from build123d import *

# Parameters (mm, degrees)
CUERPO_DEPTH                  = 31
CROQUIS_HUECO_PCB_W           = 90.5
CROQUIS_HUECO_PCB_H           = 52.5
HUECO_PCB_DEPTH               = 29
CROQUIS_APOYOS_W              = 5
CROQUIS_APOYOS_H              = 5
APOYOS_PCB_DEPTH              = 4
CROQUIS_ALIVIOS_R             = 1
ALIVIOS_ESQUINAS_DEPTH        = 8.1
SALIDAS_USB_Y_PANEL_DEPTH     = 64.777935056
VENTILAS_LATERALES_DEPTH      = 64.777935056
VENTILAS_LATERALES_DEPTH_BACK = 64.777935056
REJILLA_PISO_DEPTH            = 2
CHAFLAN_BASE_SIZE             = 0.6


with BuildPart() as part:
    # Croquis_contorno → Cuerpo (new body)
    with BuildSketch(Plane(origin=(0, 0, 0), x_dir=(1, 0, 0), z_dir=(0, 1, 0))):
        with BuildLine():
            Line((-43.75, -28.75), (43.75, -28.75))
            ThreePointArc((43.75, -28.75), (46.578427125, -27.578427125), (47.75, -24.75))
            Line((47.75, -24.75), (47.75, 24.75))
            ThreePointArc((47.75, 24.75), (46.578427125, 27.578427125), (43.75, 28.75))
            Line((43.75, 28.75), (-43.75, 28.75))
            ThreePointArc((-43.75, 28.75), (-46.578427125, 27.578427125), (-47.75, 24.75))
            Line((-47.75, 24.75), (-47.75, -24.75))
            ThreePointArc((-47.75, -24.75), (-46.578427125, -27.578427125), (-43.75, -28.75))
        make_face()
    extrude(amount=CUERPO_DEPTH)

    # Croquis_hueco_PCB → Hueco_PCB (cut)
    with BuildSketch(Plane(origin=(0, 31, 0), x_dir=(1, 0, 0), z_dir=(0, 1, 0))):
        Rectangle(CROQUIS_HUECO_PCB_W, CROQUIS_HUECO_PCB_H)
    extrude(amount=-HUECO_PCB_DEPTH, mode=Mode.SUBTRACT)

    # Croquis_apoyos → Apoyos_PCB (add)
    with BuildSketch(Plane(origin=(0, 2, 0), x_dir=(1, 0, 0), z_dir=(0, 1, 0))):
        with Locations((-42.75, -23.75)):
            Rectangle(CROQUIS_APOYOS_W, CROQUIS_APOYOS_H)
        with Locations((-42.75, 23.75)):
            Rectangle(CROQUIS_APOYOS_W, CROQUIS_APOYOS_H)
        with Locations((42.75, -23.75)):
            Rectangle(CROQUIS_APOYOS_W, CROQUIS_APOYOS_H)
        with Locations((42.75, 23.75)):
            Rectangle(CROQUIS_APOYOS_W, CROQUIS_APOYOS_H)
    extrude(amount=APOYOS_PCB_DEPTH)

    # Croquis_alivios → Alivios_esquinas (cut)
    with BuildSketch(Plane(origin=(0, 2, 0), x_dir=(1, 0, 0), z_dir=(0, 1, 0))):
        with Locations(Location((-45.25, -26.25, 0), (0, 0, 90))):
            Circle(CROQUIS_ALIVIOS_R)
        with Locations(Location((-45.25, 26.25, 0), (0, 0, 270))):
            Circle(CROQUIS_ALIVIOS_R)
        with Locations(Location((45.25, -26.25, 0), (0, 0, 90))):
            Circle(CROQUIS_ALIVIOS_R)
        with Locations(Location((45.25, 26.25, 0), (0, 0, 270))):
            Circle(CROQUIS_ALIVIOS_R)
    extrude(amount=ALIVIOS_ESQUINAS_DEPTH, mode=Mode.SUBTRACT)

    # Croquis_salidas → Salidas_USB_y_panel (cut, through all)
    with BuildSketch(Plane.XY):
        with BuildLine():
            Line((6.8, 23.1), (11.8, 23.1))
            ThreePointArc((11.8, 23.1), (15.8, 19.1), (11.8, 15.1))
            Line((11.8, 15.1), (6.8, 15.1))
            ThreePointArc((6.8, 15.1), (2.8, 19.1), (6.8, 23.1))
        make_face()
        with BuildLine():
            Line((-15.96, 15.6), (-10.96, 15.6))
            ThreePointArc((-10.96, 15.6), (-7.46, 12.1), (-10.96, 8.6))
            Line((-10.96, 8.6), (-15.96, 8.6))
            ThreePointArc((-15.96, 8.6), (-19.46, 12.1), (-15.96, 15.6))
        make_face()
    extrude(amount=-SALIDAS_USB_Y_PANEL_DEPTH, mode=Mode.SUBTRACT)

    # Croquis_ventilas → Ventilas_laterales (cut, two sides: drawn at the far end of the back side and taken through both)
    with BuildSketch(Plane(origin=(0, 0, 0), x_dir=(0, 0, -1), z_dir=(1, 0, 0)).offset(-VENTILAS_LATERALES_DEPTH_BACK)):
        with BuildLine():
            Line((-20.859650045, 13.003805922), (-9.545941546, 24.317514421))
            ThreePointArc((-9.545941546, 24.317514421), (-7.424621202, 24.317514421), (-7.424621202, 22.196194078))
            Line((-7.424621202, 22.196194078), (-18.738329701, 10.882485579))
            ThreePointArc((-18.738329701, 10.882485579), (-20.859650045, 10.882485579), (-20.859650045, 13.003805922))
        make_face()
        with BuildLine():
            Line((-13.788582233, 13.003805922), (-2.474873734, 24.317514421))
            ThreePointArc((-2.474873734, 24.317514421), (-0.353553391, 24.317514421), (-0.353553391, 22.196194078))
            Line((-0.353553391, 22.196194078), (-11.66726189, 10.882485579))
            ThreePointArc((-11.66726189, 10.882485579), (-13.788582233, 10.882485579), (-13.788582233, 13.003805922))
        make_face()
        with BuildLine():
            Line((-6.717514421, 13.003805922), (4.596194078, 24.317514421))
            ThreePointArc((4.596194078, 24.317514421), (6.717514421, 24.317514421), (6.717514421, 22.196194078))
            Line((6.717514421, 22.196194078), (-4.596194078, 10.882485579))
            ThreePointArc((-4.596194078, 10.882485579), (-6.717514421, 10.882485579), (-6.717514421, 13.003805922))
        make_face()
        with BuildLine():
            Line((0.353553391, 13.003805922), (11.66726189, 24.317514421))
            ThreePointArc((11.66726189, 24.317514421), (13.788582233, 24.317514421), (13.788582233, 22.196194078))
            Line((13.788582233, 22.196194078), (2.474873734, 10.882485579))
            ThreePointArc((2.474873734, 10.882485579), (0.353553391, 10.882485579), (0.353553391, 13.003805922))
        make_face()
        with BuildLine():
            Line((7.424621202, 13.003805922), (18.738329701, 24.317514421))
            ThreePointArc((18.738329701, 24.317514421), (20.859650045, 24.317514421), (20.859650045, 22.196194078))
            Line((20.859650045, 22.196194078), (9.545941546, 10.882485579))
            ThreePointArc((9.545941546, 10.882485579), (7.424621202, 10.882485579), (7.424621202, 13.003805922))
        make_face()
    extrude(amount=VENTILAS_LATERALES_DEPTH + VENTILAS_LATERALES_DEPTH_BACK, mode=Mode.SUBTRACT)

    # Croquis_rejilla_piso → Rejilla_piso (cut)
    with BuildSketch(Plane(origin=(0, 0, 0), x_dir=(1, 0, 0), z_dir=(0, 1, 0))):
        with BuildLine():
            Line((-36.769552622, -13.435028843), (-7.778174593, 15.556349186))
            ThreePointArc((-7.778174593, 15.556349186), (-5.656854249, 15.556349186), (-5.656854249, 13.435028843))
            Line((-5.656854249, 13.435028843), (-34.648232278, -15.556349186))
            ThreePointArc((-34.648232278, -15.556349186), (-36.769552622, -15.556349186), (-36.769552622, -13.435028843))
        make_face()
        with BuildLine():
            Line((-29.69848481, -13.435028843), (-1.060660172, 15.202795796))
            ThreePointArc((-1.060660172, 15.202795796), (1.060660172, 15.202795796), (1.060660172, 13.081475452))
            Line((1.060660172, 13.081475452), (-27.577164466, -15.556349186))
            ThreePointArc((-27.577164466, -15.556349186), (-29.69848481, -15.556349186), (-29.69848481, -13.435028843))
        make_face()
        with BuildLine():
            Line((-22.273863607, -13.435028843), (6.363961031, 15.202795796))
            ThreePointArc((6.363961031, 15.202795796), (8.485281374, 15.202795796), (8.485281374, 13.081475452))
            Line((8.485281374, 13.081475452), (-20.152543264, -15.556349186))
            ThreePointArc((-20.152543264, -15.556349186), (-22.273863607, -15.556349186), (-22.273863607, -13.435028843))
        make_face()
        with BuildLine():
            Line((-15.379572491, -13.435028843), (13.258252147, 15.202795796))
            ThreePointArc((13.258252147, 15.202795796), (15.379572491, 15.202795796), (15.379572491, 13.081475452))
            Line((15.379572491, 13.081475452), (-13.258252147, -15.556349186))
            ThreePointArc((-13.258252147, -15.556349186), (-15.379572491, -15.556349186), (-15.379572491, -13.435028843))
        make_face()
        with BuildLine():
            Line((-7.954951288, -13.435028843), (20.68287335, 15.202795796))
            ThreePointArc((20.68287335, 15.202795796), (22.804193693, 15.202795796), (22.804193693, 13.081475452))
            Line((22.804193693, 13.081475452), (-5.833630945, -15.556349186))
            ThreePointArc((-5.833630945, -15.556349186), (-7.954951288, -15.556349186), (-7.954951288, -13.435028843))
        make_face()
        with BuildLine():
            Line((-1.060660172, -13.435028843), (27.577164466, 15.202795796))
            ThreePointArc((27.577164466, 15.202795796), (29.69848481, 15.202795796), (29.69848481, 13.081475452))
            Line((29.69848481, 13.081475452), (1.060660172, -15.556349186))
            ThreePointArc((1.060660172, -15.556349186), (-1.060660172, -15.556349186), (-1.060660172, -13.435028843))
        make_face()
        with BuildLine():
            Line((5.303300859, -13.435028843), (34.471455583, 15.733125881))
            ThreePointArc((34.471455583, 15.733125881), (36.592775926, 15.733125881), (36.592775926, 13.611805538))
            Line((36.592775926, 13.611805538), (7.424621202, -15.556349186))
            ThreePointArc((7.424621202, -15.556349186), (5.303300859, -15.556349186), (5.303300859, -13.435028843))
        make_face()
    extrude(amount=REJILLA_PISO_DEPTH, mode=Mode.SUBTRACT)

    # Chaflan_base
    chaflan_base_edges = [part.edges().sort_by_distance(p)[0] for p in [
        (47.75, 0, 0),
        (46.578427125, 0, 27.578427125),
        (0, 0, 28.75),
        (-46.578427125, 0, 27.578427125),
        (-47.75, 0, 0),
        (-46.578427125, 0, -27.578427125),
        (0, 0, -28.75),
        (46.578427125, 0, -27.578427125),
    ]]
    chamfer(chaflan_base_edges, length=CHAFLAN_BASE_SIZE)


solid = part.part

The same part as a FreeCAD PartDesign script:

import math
import FreeCAD as App
import Part
import Sketcher

V = App.Vector
Q = App.Units.Quantity


def edges_at(feature, points):
    """Names of the edges that pass closest to the given points."""
    edges = feature.Shape.Edges
    near = lambda p: min(range(len(edges)), key=lambda i: edges[i].distToShape(Part.Vertex(*p))[0])
    return sorted({f"Edge{near(p) + 1}" for p in points})


def add_polygon(sketch, points):
    """Adds a closed chain of lines whose ends are joined by coincident constraints."""
    first, n = sketch.GeometryCount, len(points)
    for a, b in zip(points, points[1:] + points[:1]):
        sketch.addGeometry(Part.LineSegment(App.Vector(*a, 0), App.Vector(*b, 0)), False)
    for i in range(n):
        sketch.addConstraint(Sketcher.Constraint("Coincident", first + i, 2, first + (i + 1) % n, 1))

doc = App.newDocument("Part")
body = doc.addObject("PartDesign::Body", "Body")

# Sketch on XZ plane
sketch1 = body.newObject("Sketcher::SketchObject", "Sketch")
sketch1.AttachmentSupport = (doc.getObject("XZ_Plane"), [""])
sketch1.MapMode = "FlatFace"
sketch1.addGeometry([
    Part.LineSegment(V(-43.75, 28.75, 0), V(43.75, 28.75, 0)),  # 0
    Part.ArcOfCircle(Part.Circle(V(43.75, 24.75, 0), V(0, 0, 1), 4), math.radians(0), math.radians(90)),  # 1
    Part.LineSegment(V(47.75, 24.75, 0), V(47.75, -24.75, 0)),  # 2
    Part.ArcOfCircle(Part.Circle(V(43.75, -24.75, 0), V(0, 0, 1), 4), math.radians(-90), math.radians(0)),  # 3
    Part.LineSegment(V(43.75, -28.75, 0), V(-43.75, -28.75, 0)),  # 4
    Part.ArcOfCircle(Part.Circle(V(-43.75, -24.75, 0), V(0, 0, 1), 4), math.radians(180), math.radians(270)),  # 5
    Part.LineSegment(V(-47.75, -24.75, 0), V(-47.75, 24.75, 0)),  # 6
    Part.ArcOfCircle(Part.Circle(V(-43.75, 24.75, 0), V(0, 0, 1), 4), math.radians(90), math.radians(180)),  # 7
], False)
sketch1.addConstraint([
    Sketcher.Constraint("Tangent", 0, 2, 1, 2),
    Sketcher.Constraint("Tangent", 1, 1, 2, 1),
    Sketcher.Constraint("Tangent", 2, 2, 3, 2),
    Sketcher.Constraint("Tangent", 3, 1, 4, 1),
    Sketcher.Constraint("Tangent", 4, 2, 5, 2),
    Sketcher.Constraint("Tangent", 5, 1, 6, 1),
    Sketcher.Constraint("Tangent", 6, 2, 7, 2),
    Sketcher.Constraint("Tangent", 7, 1, 0, 1),
    Sketcher.Constraint("Horizontal", 0),
    Sketcher.Constraint("Vertical", 2),
    Sketcher.Constraint("Horizontal", 4),
    Sketcher.Constraint("Vertical", 6),
    Sketcher.Constraint("Equal", 1, 3),
    Sketcher.Constraint("Equal", 3, 5),
    Sketcher.Constraint("Equal", 5, 7),
    Sketcher.Constraint("Symmetric", 1, 3, 5, 3, -1, 1),
    Sketcher.Constraint("Radius", 1, Q("4 mm")),
    Sketcher.Constraint("DistanceX", 0, 1, 0, 2, Q("87.5 mm")),
    Sketcher.Constraint("DistanceY", 2, 2, 2, 1, Q("49.5 mm")),
])
pad1 = body.newObject("PartDesign::Pad", "Pad")
pad1.Profile = sketch1
pad1.Length = 31
pad1.Reversed = True

# Sketch on XZ plane
sketch2 = body.newObject("Sketcher::SketchObject", "Sketch001")
sketch2.AttachmentSupport = (doc.getObject("XZ_Plane"), [""])
sketch2.MapMode = "FlatFace"
sketch2.AttachmentOffset = App.Placement(V(0, 0, -31), App.Rotation())
add_polygon(sketch2, [(-45.25, -26.25), (-45.25, 26.25), (45.25, 26.25), (45.25, -26.25)])  # lines 0-3
sketch2.addConstraint([
    Sketcher.Constraint("Vertical", 0),
    Sketcher.Constraint("Horizontal", 1),
    Sketcher.Constraint("Vertical", 2),
    Sketcher.Constraint("Horizontal", 3),
    Sketcher.Constraint("Symmetric", 0, 2, 2, 2, -1, 1),
    Sketcher.Constraint("DistanceX", 1, 1, 1, 2, Q("90.5 mm")),
    Sketcher.Constraint("DistanceY", 0, 1, 0, 2, Q("52.5 mm")),
])
pocket1 = body.newObject("PartDesign::Pocket", "Pocket")
pocket1.Profile = sketch2
pocket1.Length = 29
pocket1.Reversed = True

# Sketch on XZ plane
sketch3 = body.newObject("Sketcher::SketchObject", "Sketch002")
sketch3.AttachmentSupport = (doc.getObject("XZ_Plane"), [""])
sketch3.MapMode = "FlatFace"
sketch3.AttachmentOffset = App.Placement(V(0, 0, -2), App.Rotation())
add_polygon(sketch3, [(-45.25, 21.25), (-45.25, 26.25), (-40.25, 26.25), (-40.25, 21.25)])  # lines 0-3
add_polygon(sketch3, [(-45.25, -26.25), (-45.25, -21.25), (-40.25, -21.25), (-40.25, -26.25)])  # lines 4-7
add_polygon(sketch3, [(40.25, 21.25), (40.25, 26.25), (45.25, 26.25), (45.25, 21.25)])  # lines 8-11
add_polygon(sketch3, [(40.25, -26.25), (40.25, -21.25), (45.25, -21.25), (45.25, -26.25)])  # lines 12-15
sketch3.addConstraint([
    Sketcher.Constraint("Vertical", 0),
    Sketcher.Constraint("Horizontal", 1),
    Sketcher.Constraint("Vertical", 2),
    Sketcher.Constraint("Horizontal", 3),
    Sketcher.Constraint("Vertical", 4),
    Sketcher.Constraint("Horizontal", 5),
    Sketcher.Constraint("Vertical", 6),
    Sketcher.Constraint("Horizontal", 7),
    Sketcher.Constraint("Vertical", 8),
    Sketcher.Constraint("Horizontal", 9),
    Sketcher.Constraint("Vertical", 10),
    Sketcher.Constraint("Horizontal", 11),
    Sketcher.Constraint("Vertical", 12),
    Sketcher.Constraint("Horizontal", 13),
    Sketcher.Constraint("Vertical", 14),
    Sketcher.Constraint("Horizontal", 15),
    Sketcher.Constraint("Symmetric", 6, 2, 8, 2, -1, 1),
    Sketcher.Constraint("Symmetric", 4, 2, 10, 2, -1, 1),
    Sketcher.Constraint("Symmetric", 2, 2, 12, 2, -1, 1),
    Sketcher.Constraint("Symmetric", 0, 2, 14, 2, -1, 1),
    Sketcher.Constraint("Symmetric", 1, 2, 8, 2, -2),
    Sketcher.Constraint("Symmetric", 3, 2, 10, 2, -2),
    Sketcher.Constraint("Equal", 15, 0),
    Sketcher.Constraint("DistanceX", 1, 1, 1, 2, Q("5 mm")),
    Sketcher.Constraint("DistanceY", 4, 2, 3, 2, Q("42.5 mm")),
    Sketcher.Constraint("DistanceX", 1, 2, 8, 2, Q("80.5 mm")),
])
pad2 = body.newObject("PartDesign::Pad", "Pad001")
pad2.Profile = sketch3
pad2.Length = 4
pad2.Reversed = True

# Sketch on XZ plane
sketch4 = body.newObject("Sketcher::SketchObject", "Sketch003")
sketch4.AttachmentSupport = (doc.getObject("XZ_Plane"), [""])
sketch4.MapMode = "FlatFace"
sketch4.AttachmentOffset = App.Placement(V(0, 0, -2), App.Rotation())
sketch4.addGeometry([
    Part.Circle(V(-45.25, 26.25, 0), V(0, 0, 1), 1),
    Part.Circle(V(-45.25, -26.25, 0), V(0, 0, 1), 1),
    Part.Circle(V(45.25, 26.25, 0), V(0, 0, 1), 1),
    Part.Circle(V(45.25, -26.25, 0), V(0, 0, 1), 1),
], False)
sketch4.addConstraint([
    Sketcher.Constraint("Equal", 0, 1),
    Sketcher.Constraint("Equal", 1, 2),
    Sketcher.Constraint("Equal", 2, 3),
    Sketcher.Constraint("Symmetric", 1, 3, 2, 3, -1, 1),
    Sketcher.Constraint("Symmetric", 0, 3, 3, 3, -1, 1),
    Sketcher.Constraint("Symmetric", 0, 3, 2, 3, -2),
    Sketcher.Constraint("Diameter", 0, Q("2 mm")),
    Sketcher.Constraint("DistanceY", 1, 3, 0, 3, Q("52.5 mm")),
    Sketcher.Constraint("DistanceX", 0, 3, 2, 3, Q("90.5 mm")),
])
pocket2 = body.newObject("PartDesign::Pocket", "Pocket001")
pocket2.Profile = sketch4
pocket2.Length = 8.1

# Sketch on XY plane
sketch5 = body.newObject("Sketcher::SketchObject", "Sketch004")
sketch5.AttachmentSupport = (doc.getObject("XY_Plane"), [""])
sketch5.MapMode = "FlatFace"
sketch5.addGeometry([
    Part.LineSegment(V(11.8, 23.1, 0), V(6.8, 23.1, 0)),  # 0
    Part.ArcOfCircle(Part.Circle(V(6.8, 19.1, 0), V(0, 0, 1), 4), math.radians(90), math.radians(270)),  # 1
    Part.LineSegment(V(6.8, 15.1, 0), V(11.8, 15.1, 0)),  # 2
    Part.ArcOfCircle(Part.Circle(V(11.8, 19.1, 0), V(0, 0, 1), 4), math.radians(-90), math.radians(90)),  # 3
    Part.LineSegment(V(-10.96, 15.6, 0), V(-15.96, 15.6, 0)),  # 4
    Part.ArcOfCircle(Part.Circle(V(-15.96, 12.1, 0), V(0, 0, 1), 3.5), math.radians(90), math.radians(270)),  # 5
    Part.LineSegment(V(-15.96, 8.6, 0), V(-10.96, 8.6, 0)),  # 6
    Part.ArcOfCircle(Part.Circle(V(-10.96, 12.1, 0), V(0, 0, 1), 3.5), math.radians(-90), math.radians(90)),  # 7
], False)
sketch5.addConstraint([
    Sketcher.Constraint("Tangent", 0, 2, 1, 1),
    Sketcher.Constraint("Tangent", 1, 2, 2, 1),
    Sketcher.Constraint("Tangent", 2, 2, 3, 1),
    Sketcher.Constraint("Tangent", 3, 2, 0, 1),
    Sketcher.Constraint("Tangent", 4, 2, 5, 1),
    Sketcher.Constraint("Tangent", 5, 2, 6, 1),
    Sketcher.Constraint("Tangent", 6, 2, 7, 1),
    Sketcher.Constraint("Tangent", 7, 2, 4, 1),
    Sketcher.Constraint("Horizontal", 0),
    Sketcher.Constraint("Horizontal", 2),
    Sketcher.Constraint("Horizontal", 4),
    Sketcher.Constraint("Horizontal", 6),
    Sketcher.Constraint("Equal", 2, 4),
    Sketcher.Constraint("Radius", 1, Q("4 mm")),
    Sketcher.Constraint("Radius", 5, Q("3.5 mm")),
    Sketcher.Constraint("DistanceX", 0, 2, 0, 1, Q("5 mm")),
    Sketcher.Constraint("DistanceY", 5, 3, 1, 3, Q("7 mm")),
    Sketcher.Constraint("DistanceX", -1, 1, 1, 3, Q("6.8 mm")),
    Sketcher.Constraint("DistanceY", -1, 1, 1, 3, Q("19.1 mm")),
    Sketcher.Constraint("DistanceX", 5, 3, -1, 1, Q("15.96 mm")),
])
pocket3 = body.newObject("PartDesign::Pocket", "Pocket002")
pocket3.Profile = sketch5
pocket3.Type = "ThroughAll"

# Sketch on YZ plane
sketch6 = body.newObject("Sketcher::SketchObject", "Sketch005")
sketch6.AttachmentSupport = (doc.getObject("YZ_Plane"), [""])
sketch6.MapMode = "FlatFace"
sketch6.addGeometry([
    Part.LineSegment(V(24.317514, 9.545942, 0), V(13.003806, 20.85965, 0)),  # 0
    Part.ArcOfCircle(Part.Circle(V(11.943146, 19.79899, 0), V(0, 0, 1), 1.5), math.radians(45), math.radians(225)),  # 1
    Part.LineSegment(V(10.882486, 18.73833, 0), V(22.196194, 7.424621, 0)),  # 2
    Part.ArcOfCircle(Part.Circle(V(23.256854, 8.485281, 0), V(0, 0, 1), 1.5), math.radians(-135), math.radians(45)),  # 3
    Part.LineSegment(V(24.317514, 2.474874, 0), V(13.003806, 13.788582, 0)),  # 4
    Part.ArcOfCircle(Part.Circle(V(11.943146, 12.727922, 0), V(0, 0, 1), 1.5), math.radians(45), math.radians(225)),  # 5
    Part.LineSegment(V(10.882486, 11.667262, 0), V(22.196194, 0.353553, 0)),  # 6
    Part.ArcOfCircle(Part.Circle(V(23.256854, 1.414214, 0), V(0, 0, 1), 1.5), math.radians(-135), math.radians(45)),  # 7
    Part.LineSegment(V(24.317514, -4.596194, 0), V(13.003806, 6.717514, 0)),  # 8
    Part.ArcOfCircle(Part.Circle(V(11.943146, 5.656854, 0), V(0, 0, 1), 1.5), math.radians(45), math.radians(225)),  # 9
    Part.LineSegment(V(10.882486, 4.596194, 0), V(22.196194, -6.717514, 0)),  # 10
    Part.ArcOfCircle(Part.Circle(V(23.256854, -5.656854, 0), V(0, 0, 1), 1.5), math.radians(-135), math.radians(45)),  # 11
    Part.LineSegment(V(24.317514, -11.667262, 0), V(13.003806, -0.353553, 0)),  # 12
    Part.ArcOfCircle(Part.Circle(V(11.943146, -1.414214, 0), V(0, 0, 1), 1.5), math.radians(45), math.radians(225)),  # 13
    Part.LineSegment(V(10.882486, -2.474874, 0), V(22.196194, -13.788582, 0)),  # 14
    Part.ArcOfCircle(Part.Circle(V(23.256854, -12.727922, 0), V(0, 0, 1), 1.5), math.radians(-135), math.radians(45)),  # 15
    Part.LineSegment(V(24.317514, -18.73833, 0), V(13.003806, -7.424621, 0)),  # 16
    Part.ArcOfCircle(Part.Circle(V(11.943146, -8.485281, 0), V(0, 0, 1), 1.5), math.radians(45), math.radians(225)),  # 17
    Part.LineSegment(V(10.882486, -9.545942, 0), V(22.196194, -20.85965, 0)),  # 18
    Part.ArcOfCircle(Part.Circle(V(23.256854, -19.79899, 0), V(0, 0, 1), 1.5), math.radians(-135), math.radians(45)),  # 19
], False)
sketch6.addConstraint([
    Sketcher.Constraint("Tangent", 0, 2, 1, 1),
    Sketcher.Constraint("Tangent", 1, 2, 2, 1),
    Sketcher.Constraint("Tangent", 2, 2, 3, 1),
    Sketcher.Constraint("Tangent", 3, 2, 0, 1),
    Sketcher.Constraint("Tangent", 4, 2, 5, 1),
    Sketcher.Constraint("Tangent", 5, 2, 6, 1),
    Sketcher.Constraint("Tangent", 6, 2, 7, 1),
    Sketcher.Constraint("Tangent", 7, 2, 4, 1),
    Sketcher.Constraint("Tangent", 8, 2, 9, 1),
    Sketcher.Constraint("Tangent", 9, 2, 10, 1),
    Sketcher.Constraint("Tangent", 10, 2, 11, 1),
    Sketcher.Constraint("Tangent", 11, 2, 8, 1),
    Sketcher.Constraint("Tangent", 12, 2, 13, 1),
    Sketcher.Constraint("Tangent", 13, 2, 14, 1),
    Sketcher.Constraint("Tangent", 14, 2, 15, 1),
    Sketcher.Constraint("Tangent", 15, 2, 12, 1),
    Sketcher.Constraint("Tangent", 16, 2, 17, 1),
    Sketcher.Constraint("Tangent", 17, 2, 18, 1),
    Sketcher.Constraint("Tangent", 18, 2, 19, 1),
    Sketcher.Constraint("Tangent", 19, 2, 16, 1),
    Sketcher.Constraint("Equal", 1, 3),
    Sketcher.Constraint("Equal", 3, 5),
    Sketcher.Constraint("Equal", 5, 7),
    Sketcher.Constraint("Equal", 7, 9),
    Sketcher.Constraint("Equal", 9, 11),
    Sketcher.Constraint("Equal", 11, 13),
    Sketcher.Constraint("Equal", 13, 15),
    Sketcher.Constraint("Equal", 15, 17),
    Sketcher.Constraint("Equal", 17, 19),
    Sketcher.Constraint("Parallel", 2, 4),
    Sketcher.Constraint("Parallel", 6, 8),
    Sketcher.Constraint("Parallel", 10, 12),
    Sketcher.Constraint("Parallel", 14, 16),
    Sketcher.Constraint("Vertical", 1, 3, 5, 3),
    Sketcher.Constraint("Vertical", 3, 3, 7, 3),
    Sketcher.Constraint("Vertical", 5, 3, 9, 3),
    Sketcher.Constraint("Vertical", 7, 3, 11, 3),
    Sketcher.Constraint("Vertical", 9, 3, 13, 3),
    Sketcher.Constraint("Vertical", 11, 3, 15, 3),
    Sketcher.Constraint("Vertical", 13, 3, 17, 3),
    Sketcher.Constraint("Vertical", 15, 3, 19, 3),
    Sketcher.Constraint("Radius", 1, Q("1.5 mm")),
    Sketcher.Constraint("Angle", 0, Q("135 deg")),
    Sketcher.Constraint("Distance", 0, Q("16 mm")),
    Sketcher.Constraint("DistanceY", 2, 2, 5, 3, Q("5.303301 mm")),
    Sketcher.Constraint("DistanceY", -1, 1, 1, 3, Q("19.79899 mm")),
    Sketcher.Constraint("DistanceY", 17, 3, -1, 1, Q("8.485281 mm")),
    Sketcher.Constraint("DistanceY", 15, 2, -1, 1, Q("11.667262 mm")),
    Sketcher.Constraint("DistanceY", 7, 3, 9, 3, Q("4.242641 mm")),
    Sketcher.Constraint("DistanceX", -1, 1, 1, 3, Q("11.943146 mm")),
])
pocket4 = body.newObject("PartDesign::Pocket", "Pocket003")
pocket4.Profile = sketch6
pocket4.Type = "ThroughAll"
pocket4.Midplane = True

# Sketch on XZ plane
sketch7 = body.newObject("Sketcher::SketchObject", "Sketch006")
sketch7.AttachmentSupport = (doc.getObject("XZ_Plane"), [""])
sketch7.MapMode = "FlatFace"
sketch7.addGeometry([
    Part.LineSegment(V(-7.778175, -15.556349, 0), V(-36.769553, 13.435029, 0)),  # 0
    Part.ArcOfCircle(Part.Circle(V(-35.708892, 14.495689, 0), V(0, 0, 1), 1.5), math.radians(45), math.radians(225)),  # 1
    Part.LineSegment(V(-34.648232, 15.556349, 0), V(-5.656854, -13.435029, 0)),  # 2
    Part.ArcOfCircle(Part.Circle(V(-6.717514, -14.495689, 0), V(0, 0, 1), 1.5), math.radians(-135), math.radians(45)),  # 3
    Part.LineSegment(V(-1.06066, -15.202796, 0), V(-29.698485, 13.435029, 0)),  # 4
    Part.ArcOfCircle(Part.Circle(V(-28.637825, 14.495689, 0), V(0, 0, 1), 1.5), math.radians(45), math.radians(225)),  # 5
    Part.LineSegment(V(-27.577164, 15.556349, 0), V(1.06066, -13.081475, 0)),  # 6
    Part.ArcOfCircle(Part.Circle(V(0, -14.142136, 0), V(0, 0, 1), 1.5), math.radians(-135), math.radians(45)),  # 7
    Part.LineSegment(V(6.363961, -15.202796, 0), V(-22.273864, 13.435029, 0)),  # 8
    Part.ArcOfCircle(Part.Circle(V(-21.213203, 14.495689, 0), V(0, 0, 1), 1.5), math.radians(45), math.radians(225)),  # 9
    Part.LineSegment(V(-20.152543, 15.556349, 0), V(8.485281, -13.081475, 0)),  # 10
    Part.ArcOfCircle(Part.Circle(V(7.424621, -14.142136, 0), V(0, 0, 1), 1.5), math.radians(-135), math.radians(45)),  # 11
    Part.LineSegment(V(13.258252, -15.202796, 0), V(-15.379572, 13.435029, 0)),  # 12
    Part.ArcOfCircle(Part.Circle(V(-14.318912, 14.495689, 0), V(0, 0, 1), 1.5), math.radians(45), math.radians(225)),  # 13
    Part.LineSegment(V(-13.258252, 15.556349, 0), V(15.379572, -13.081475, 0)),  # 14
    Part.ArcOfCircle(Part.Circle(V(14.318912, -14.142136, 0), V(0, 0, 1), 1.5), math.radians(-135), math.radians(45)),  # 15
    Part.LineSegment(V(20.682873, -15.202796, 0), V(-7.954951, 13.435029, 0)),  # 16
    Part.ArcOfCircle(Part.Circle(V(-6.894291, 14.495689, 0), V(0, 0, 1), 1.5), math.radians(45), math.radians(225)),  # 17
    Part.LineSegment(V(-5.833631, 15.556349, 0), V(22.804194, -13.081475, 0)),  # 18
    Part.ArcOfCircle(Part.Circle(V(21.743534, -14.142136, 0), V(0, 0, 1), 1.5), math.radians(-135), math.radians(45)),  # 19
    Part.LineSegment(V(27.577164, -15.202796, 0), V(-1.06066, 13.435029, 0)),  # 20
    Part.ArcOfCircle(Part.Circle(V(0, 14.495689, 0), V(0, 0, 1), 1.5), math.radians(45), math.radians(225)),  # 21
    Part.LineSegment(V(1.06066, 15.556349, 0), V(29.698485, -13.081475, 0)),  # 22
    Part.ArcOfCircle(Part.Circle(V(28.637825, -14.142136, 0), V(0, 0, 1), 1.5), math.radians(-135), math.radians(45)),  # 23
    Part.LineSegment(V(34.471456, -15.733126, 0), V(5.303301, 13.435029, 0)),  # 24
    Part.ArcOfCircle(Part.Circle(V(6.363961, 14.495689, 0), V(0, 0, 1), 1.5), math.radians(45), math.radians(225)),  # 25
    Part.LineSegment(V(7.424621, 15.556349, 0), V(36.592776, -13.611806, 0)),  # 26
    Part.ArcOfCircle(Part.Circle(V(35.532116, -14.672466, 0), V(0, 0, 1), 1.5), math.radians(-135), math.radians(45)),  # 27
], False)
sketch7.addConstraint([
    Sketcher.Constraint("Tangent", 0, 2, 1, 2),
    Sketcher.Constraint("Tangent", 1, 1, 2, 1),
    Sketcher.Constraint("Tangent", 2, 2, 3, 2),
    Sketcher.Constraint("Tangent", 3, 1, 0, 1),
    Sketcher.Constraint("Tangent", 4, 2, 5, 2),
    Sketcher.Constraint("Tangent", 5, 1, 6, 1),
    Sketcher.Constraint("Tangent", 6, 2, 7, 2),
    Sketcher.Constraint("Tangent", 7, 1, 4, 1),
    Sketcher.Constraint("Tangent", 8, 2, 9, 2),
    Sketcher.Constraint("Tangent", 9, 1, 10, 1),
    Sketcher.Constraint("Tangent", 10, 2, 11, 2),
    Sketcher.Constraint("Tangent", 11, 1, 8, 1),
    Sketcher.Constraint("Tangent", 12, 2, 13, 2),
    Sketcher.Constraint("Tangent", 13, 1, 14, 1),
    Sketcher.Constraint("Tangent", 14, 2, 15, 2),
    Sketcher.Constraint("Tangent", 15, 1, 12, 1),
    Sketcher.Constraint("Tangent", 16, 2, 17, 2),
    Sketcher.Constraint("Tangent", 17, 1, 18, 1),
    Sketcher.Constraint("Tangent", 18, 2, 19, 2),
    Sketcher.Constraint("Tangent", 19, 1, 16, 1),
    Sketcher.Constraint("Tangent", 20, 2, 21, 2),
    Sketcher.Constraint("Tangent", 21, 1, 22, 1),
    Sketcher.Constraint("Tangent", 22, 2, 23, 2),
    Sketcher.Constraint("Tangent", 23, 1, 20, 1),
    Sketcher.Constraint("Tangent", 24, 2, 25, 2),
    Sketcher.Constraint("Tangent", 25, 1, 26, 1),
    Sketcher.Constraint("Tangent", 26, 2, 27, 2),
    Sketcher.Constraint("Tangent", 27, 1, 24, 1),
    Sketcher.Constraint("Equal", 1, 3),
    Sketcher.Constraint("Equal", 3, 5),
    Sketcher.Constraint("Equal", 5, 7),
    Sketcher.Constraint("Equal", 7, 9),
    Sketcher.Constraint("Equal", 9, 11),
    Sketcher.Constraint("Equal", 11, 13),
    Sketcher.Constraint("Equal", 13, 15),
    Sketcher.Constraint("Equal", 15, 17),
    Sketcher.Constraint("Equal", 17, 19),
    Sketcher.Constraint("Equal", 19, 21),
    Sketcher.Constraint("Equal", 21, 23),
    Sketcher.Constraint("Equal", 23, 25),
    Sketcher.Constraint("Equal", 25, 27),
    Sketcher.Constraint("PointOnObject", 7, 3, -2),
    Sketcher.Constraint("PointOnObject", 21, 3, -2),
    Sketcher.Constraint("Parallel", 2, 4),
    Sketcher.Constraint("Parallel", 6, 8),
    Sketcher.Constraint("Parallel", 10, 12),
    Sketcher.Constraint("Parallel", 14, 16),
    Sketcher.Constraint("Parallel", 18, 20),
    Sketcher.Constraint("Parallel", 22, 24),
    Sketcher.Constraint("Horizontal", 1, 3, 5, 3),
    Sketcher.Constraint("Horizontal", 5, 3, 9, 3),
    Sketcher.Constraint("Horizontal", 7, 3, 11, 3),
    Sketcher.Constraint("Horizontal", 9, 3, 13, 3),
    Sketcher.Constraint("Horizontal", 11, 3, 15, 3),
    Sketcher.Constraint("Horizontal", 13, 3, 17, 3),
    Sketcher.Constraint("Horizontal", 15, 3, 19, 3),
    Sketcher.Constraint("Horizontal", 17, 3, 21, 3),
    Sketcher.Constraint("Horizontal", 19, 3, 23, 3),
    Sketcher.Constraint("Horizontal", 21, 3, 25, 3),
    Sketcher.Constraint("Vertical", 25, 3, 11, 1),
    Sketcher.Constraint("Radius", 1, Q("1.5 mm")),
    Sketcher.Constraint("Angle", 0, Q("135 deg")),
    Sketcher.Constraint("Distance", 0, Q("41 mm")),
    Sketcher.Constraint("Distance", 4, Q("40.5 mm")),
    Sketcher.Constraint("Distance", 24, Q("41.25 mm")),
    Sketcher.Constraint("DistanceX", -1, 1, 24, 2, Q("5.303301 mm")),
    Sketcher.Constraint("DistanceX", 1, 3, 17, 3, Q("28.814601 mm")),
    Sketcher.Constraint("DistanceX", 13, 1, 16, 2, Q("5.303301 mm")),
    Sketcher.Constraint("DistanceY", -1, 1, 1, 3, Q("14.495689 mm")),
    Sketcher.Constraint("DistanceX", 17, 3, -1, 1, Q("6.894291 mm")),
])
pocket5 = body.newObject("PartDesign::Pocket", "Pocket004")
pocket5.Profile = sketch7
pocket5.Length = 2
doc.recompute()

chamfer = body.newObject("PartDesign::Chamfer", "Chamfer")
chamfer.Base = (pocket5, edges_at(pocket5, [
    (47.75, 0, 0),
    (46.578, 0, 27.578),
    (0, 0, 28.75),
    (-46.578, 0, 27.578),
    (-47.75, 0, 0),
    (-46.578, 0, -27.578),
    (0, 0, -28.75),
    (46.578, 0, -27.578),
]))
chamfer.Size = 0.6

doc.recompute()
